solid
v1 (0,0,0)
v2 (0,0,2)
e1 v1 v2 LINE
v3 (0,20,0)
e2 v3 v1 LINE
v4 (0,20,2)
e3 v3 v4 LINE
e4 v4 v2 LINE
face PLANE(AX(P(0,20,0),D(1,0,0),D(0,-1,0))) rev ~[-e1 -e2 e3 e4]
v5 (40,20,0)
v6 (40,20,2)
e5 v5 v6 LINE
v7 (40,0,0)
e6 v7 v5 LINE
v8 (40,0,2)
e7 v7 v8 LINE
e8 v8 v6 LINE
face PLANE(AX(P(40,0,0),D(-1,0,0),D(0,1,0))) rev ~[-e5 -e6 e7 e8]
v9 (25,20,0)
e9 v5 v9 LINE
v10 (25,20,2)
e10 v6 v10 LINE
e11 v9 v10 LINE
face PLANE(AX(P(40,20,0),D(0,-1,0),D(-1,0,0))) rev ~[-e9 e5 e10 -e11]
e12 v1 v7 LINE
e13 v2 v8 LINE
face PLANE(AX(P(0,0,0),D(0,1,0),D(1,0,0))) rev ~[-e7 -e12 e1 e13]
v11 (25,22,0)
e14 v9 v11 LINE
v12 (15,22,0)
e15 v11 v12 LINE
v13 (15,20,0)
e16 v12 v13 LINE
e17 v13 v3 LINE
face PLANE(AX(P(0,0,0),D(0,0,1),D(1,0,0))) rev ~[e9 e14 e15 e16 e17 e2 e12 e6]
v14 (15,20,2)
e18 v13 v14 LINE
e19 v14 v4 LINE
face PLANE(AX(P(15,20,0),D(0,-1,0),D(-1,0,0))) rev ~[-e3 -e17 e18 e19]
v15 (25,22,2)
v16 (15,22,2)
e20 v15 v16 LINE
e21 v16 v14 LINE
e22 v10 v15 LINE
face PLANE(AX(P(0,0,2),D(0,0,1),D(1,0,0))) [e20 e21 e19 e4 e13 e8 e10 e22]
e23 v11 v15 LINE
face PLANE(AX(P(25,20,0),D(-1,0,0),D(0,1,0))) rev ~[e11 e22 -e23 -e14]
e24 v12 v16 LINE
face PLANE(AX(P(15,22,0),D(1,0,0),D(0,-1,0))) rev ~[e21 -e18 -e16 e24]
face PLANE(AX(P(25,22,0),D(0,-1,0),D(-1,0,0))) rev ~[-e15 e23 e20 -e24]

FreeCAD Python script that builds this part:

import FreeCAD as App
import Part
import Sketcher
Q = App.Units.Quantity


def add_polygon(sketch, points):
    """Adds a closed chain of lines whose ends are joined by coincident constraints."""
    first, n = sketch.GeometryCount, len(points)
    for a, b in zip(points, points[1:] + points[:1]):
        sketch.addGeometry(Part.LineSegment(App.Vector(*a, 0), App.Vector(*b, 0)), False)
    for i in range(n):
        sketch.addConstraint(Sketcher.Constraint("Coincident", first + i, 2, first + (i + 1) % n, 1))

doc = App.newDocument("Part")
body = doc.addObject("PartDesign::Body", "Body")

# Sketch on XY plane
sketch1 = body.newObject("Sketcher::SketchObject", "Sketch")
sketch1.AttachmentSupport = (doc.getObject("XY_Plane"), [""])
sketch1.MapMode = "FlatFace"
add_polygon(sketch1, [(0, 20), (0, 0), (40, 0), (40, 20), (25, 20), (25, 22), (15, 22), (15, 20)])  # lines 0-7
sketch1.addConstraint([
    Sketcher.Constraint("Vertical", 0),
    Sketcher.Constraint("Horizontal", 1),
    Sketcher.Constraint("Vertical", 2),
    Sketcher.Constraint("Horizontal", 3),
    Sketcher.Constraint("Vertical", 4),
    Sketcher.Constraint("Horizontal", 5),
    Sketcher.Constraint("Vertical", 6),
    Sketcher.Constraint("Horizontal", 7),
    Sketcher.Constraint("Coincident", 0, 2, -1, 1),
    Sketcher.Constraint("Horizontal", 3, 2, 6, 2),
    Sketcher.Constraint("Equal", 3, 7),
    Sketcher.Constraint("DistanceX", 1, 1, 1, 2, Q("40 mm")),
    Sketcher.Constraint("DistanceX", 3, 2, 3, 1, Q("15 mm")),
    Sketcher.Constraint("DistanceY", 0, 2, 0, 1, Q("20 mm")),
    Sketcher.Constraint("DistanceY", 4, 1, 4, 2, Q("2 mm")),
])
pad1 = body.newObject("PartDesign::Pad", "Pad")
pad1.Profile = sketch1
pad1.Length = 2

doc.recompute()
